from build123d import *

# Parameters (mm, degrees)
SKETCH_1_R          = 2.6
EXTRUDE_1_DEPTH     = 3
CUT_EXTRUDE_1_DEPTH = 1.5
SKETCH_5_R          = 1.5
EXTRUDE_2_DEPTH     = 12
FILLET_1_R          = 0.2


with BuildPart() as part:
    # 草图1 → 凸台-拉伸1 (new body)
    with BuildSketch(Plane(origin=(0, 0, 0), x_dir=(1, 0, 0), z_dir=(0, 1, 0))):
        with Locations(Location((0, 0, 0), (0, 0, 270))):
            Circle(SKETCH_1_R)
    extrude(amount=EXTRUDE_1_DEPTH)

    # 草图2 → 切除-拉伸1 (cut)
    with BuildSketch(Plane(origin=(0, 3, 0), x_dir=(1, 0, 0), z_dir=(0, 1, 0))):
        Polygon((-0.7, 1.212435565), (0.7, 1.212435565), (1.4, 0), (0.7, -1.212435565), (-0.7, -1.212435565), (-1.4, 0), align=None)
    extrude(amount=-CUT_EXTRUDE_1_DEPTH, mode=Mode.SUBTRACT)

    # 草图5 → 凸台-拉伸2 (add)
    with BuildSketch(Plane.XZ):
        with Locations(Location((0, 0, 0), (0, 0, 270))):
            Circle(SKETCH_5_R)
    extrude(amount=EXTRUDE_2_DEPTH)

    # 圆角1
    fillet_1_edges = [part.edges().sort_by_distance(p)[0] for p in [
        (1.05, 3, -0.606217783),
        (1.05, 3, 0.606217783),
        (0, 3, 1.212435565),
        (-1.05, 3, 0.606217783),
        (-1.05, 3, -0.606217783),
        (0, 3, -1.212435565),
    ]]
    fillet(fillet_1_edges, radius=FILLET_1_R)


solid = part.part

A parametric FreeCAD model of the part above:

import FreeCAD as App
import Part
import Sketcher

V = App.Vector
Q = App.Units.Quantity


def edges_at(feature, points):
    """Names of the edges that pass closest to the given points."""
    edges = feature.Shape.Edges
    near = lambda p: min(range(len(edges)), key=lambda i: edges[i].distToShape(Part.Vertex(*p))[0])
    return sorted({f"Edge{near(p) + 1}" for p in points})

doc = App.newDocument("Part")
body = doc.addObject("PartDesign::Body", "Body")

# Sketch on XZ plane
sketch1 = body.newObject("Sketcher::SketchObject", "Sketch")
sketch1.AttachmentSupport = (doc.getObject("XZ_Plane"), [""])
sketch1.MapMode = "FlatFace"
sketch1.addGeometry(Part.Circle(V(0, 0, 0), V(0, 0, 1), 2.6), False)
sketch1.addConstraint(Sketcher.Constraint("Coincident", 0, 3, -1, 1))
sketch1.addConstraint(Sketcher.Constraint("Diameter", 0, Q("5.2 mm")))
pad1 = body.newObject("PartDesign::Pad", "Pad")
pad1.Profile = sketch1
pad1.Length = 3
pad1.Reversed = True

# Sketch on XZ plane
sketch2 = body.newObject("Sketcher::SketchObject", "Sketch001")
sketch2.AttachmentSupport = (doc.getObject("XZ_Plane"), [""])
sketch2.MapMode = "FlatFace"
sketch2.AttachmentOffset = App.Placement(V(0, 0, -3), App.Rotation())
sketch2.addGeometry(Part.LineSegment(V(0.7, -1.2, 0), V(-0.7, -1.2, 0)), False)
sketch2.addGeometry(Part.LineSegment(V(-0.7, -1.2, 0), V(-1.4, 0, 0)), False)
sketch2.addGeometry(Part.LineSegment(V(-1.4, 0, 0), V(-0.7, 1.2, 0)), False)
sketch2.addGeometry(Part.LineSegment(V(-0.7, 1.2, 0), V(0.7, 1.2, 0)), False)
sketch2.addGeometry(Part.LineSegment(V(0.7, 1.2, 0), V(1.4, 0, 0)), False)
sketch2.addGeometry(Part.LineSegment(V(1.4, 0, 0), V(0.7, -1.2, 0)), False)
sketch2.addConstraint(Sketcher.Constraint("Coincident", 0, 2, 1, 1))
sketch2.addConstraint(Sketcher.Constraint("Coincident", 1, 2, 2, 1))
sketch2.addConstraint(Sketcher.Constraint("Coincident", 2, 2, 3, 1))
sketch2.addConstraint(Sketcher.Constraint("Coincident", 3, 2, 4, 1))
sketch2.addConstraint(Sketcher.Constraint("Coincident", 4, 2, 5, 1))
sketch2.addConstraint(Sketcher.Constraint("Coincident", 5, 2, 0, 1))
sketch2.addConstraint(Sketcher.Constraint("Horizontal", 0))
sketch2.addConstraint(Sketcher.Constraint("Horizontal", 3))
sketch2.addConstraint(Sketcher.Constraint("Symmetric", 0, 2, 3, 2, -1, 1))
sketch2.addConstraint(Sketcher.Constraint("Symmetric", 1, 2, 4, 2, -1, 1))
sketch2.addConstraint(Sketcher.Constraint("PointOnObject", 1, 2, -1))
sketch2.addConstraint(Sketcher.Constraint("Parallel", 2, 5))
sketch2.addConstraint(Sketcher.Constraint("Vertical", 0, 2, 2, 2))
sketch2.addConstraint(Sketcher.Constraint("Angle", 1, Q("120 deg")))
sketch2.addConstraint(Sketcher.Constraint("DistanceX", 0, 2, 0, 1, Q("1.4 mm")))
sketch2.addConstraint(Sketcher.Constraint("Distance", 1, Q("1.4 mm")))
pocket1 = body.newObject("PartDesign::Pocket", "Pocket")
pocket1.Profile = sketch2
pocket1.Length = 1.5
pocket1.Reversed = True

# Sketch on XZ plane
sketch3 = body.newObject("Sketcher::SketchObject", "Sketch002")
sketch3.AttachmentSupport = (doc.getObject("XZ_Plane"), [""])
sketch3.MapMode = "FlatFace"
sketch3.addGeometry(Part.Circle(V(0, 0, 0), V(0, 0, 1), 1.5), False)
sketch3.addConstraint(Sketcher.Constraint("Coincident", 0, 3, -1, 1))
sketch3.addConstraint(Sketcher.Constraint("Diameter", 0, Q("3 mm")))
pad2 = body.newObject("PartDesign::Pad", "Pad001")
pad2.Profile = sketch3
pad2.Length = 12
doc.recompute()

fillet = body.newObject("PartDesign::Fillet", "Fillet")
fillet.Base = (pad2, edges_at(pad2, [
    (1.05, 3, -0.606),
    (1.05, 3, 0.606),
    (0, 3, 1.212),
    (-1.05, 3, 0.606),
    (-1.05, 3, -0.606),
    (0, 3, -1.212),
]))
fillet.Radius = 0.2

doc.recompute()
